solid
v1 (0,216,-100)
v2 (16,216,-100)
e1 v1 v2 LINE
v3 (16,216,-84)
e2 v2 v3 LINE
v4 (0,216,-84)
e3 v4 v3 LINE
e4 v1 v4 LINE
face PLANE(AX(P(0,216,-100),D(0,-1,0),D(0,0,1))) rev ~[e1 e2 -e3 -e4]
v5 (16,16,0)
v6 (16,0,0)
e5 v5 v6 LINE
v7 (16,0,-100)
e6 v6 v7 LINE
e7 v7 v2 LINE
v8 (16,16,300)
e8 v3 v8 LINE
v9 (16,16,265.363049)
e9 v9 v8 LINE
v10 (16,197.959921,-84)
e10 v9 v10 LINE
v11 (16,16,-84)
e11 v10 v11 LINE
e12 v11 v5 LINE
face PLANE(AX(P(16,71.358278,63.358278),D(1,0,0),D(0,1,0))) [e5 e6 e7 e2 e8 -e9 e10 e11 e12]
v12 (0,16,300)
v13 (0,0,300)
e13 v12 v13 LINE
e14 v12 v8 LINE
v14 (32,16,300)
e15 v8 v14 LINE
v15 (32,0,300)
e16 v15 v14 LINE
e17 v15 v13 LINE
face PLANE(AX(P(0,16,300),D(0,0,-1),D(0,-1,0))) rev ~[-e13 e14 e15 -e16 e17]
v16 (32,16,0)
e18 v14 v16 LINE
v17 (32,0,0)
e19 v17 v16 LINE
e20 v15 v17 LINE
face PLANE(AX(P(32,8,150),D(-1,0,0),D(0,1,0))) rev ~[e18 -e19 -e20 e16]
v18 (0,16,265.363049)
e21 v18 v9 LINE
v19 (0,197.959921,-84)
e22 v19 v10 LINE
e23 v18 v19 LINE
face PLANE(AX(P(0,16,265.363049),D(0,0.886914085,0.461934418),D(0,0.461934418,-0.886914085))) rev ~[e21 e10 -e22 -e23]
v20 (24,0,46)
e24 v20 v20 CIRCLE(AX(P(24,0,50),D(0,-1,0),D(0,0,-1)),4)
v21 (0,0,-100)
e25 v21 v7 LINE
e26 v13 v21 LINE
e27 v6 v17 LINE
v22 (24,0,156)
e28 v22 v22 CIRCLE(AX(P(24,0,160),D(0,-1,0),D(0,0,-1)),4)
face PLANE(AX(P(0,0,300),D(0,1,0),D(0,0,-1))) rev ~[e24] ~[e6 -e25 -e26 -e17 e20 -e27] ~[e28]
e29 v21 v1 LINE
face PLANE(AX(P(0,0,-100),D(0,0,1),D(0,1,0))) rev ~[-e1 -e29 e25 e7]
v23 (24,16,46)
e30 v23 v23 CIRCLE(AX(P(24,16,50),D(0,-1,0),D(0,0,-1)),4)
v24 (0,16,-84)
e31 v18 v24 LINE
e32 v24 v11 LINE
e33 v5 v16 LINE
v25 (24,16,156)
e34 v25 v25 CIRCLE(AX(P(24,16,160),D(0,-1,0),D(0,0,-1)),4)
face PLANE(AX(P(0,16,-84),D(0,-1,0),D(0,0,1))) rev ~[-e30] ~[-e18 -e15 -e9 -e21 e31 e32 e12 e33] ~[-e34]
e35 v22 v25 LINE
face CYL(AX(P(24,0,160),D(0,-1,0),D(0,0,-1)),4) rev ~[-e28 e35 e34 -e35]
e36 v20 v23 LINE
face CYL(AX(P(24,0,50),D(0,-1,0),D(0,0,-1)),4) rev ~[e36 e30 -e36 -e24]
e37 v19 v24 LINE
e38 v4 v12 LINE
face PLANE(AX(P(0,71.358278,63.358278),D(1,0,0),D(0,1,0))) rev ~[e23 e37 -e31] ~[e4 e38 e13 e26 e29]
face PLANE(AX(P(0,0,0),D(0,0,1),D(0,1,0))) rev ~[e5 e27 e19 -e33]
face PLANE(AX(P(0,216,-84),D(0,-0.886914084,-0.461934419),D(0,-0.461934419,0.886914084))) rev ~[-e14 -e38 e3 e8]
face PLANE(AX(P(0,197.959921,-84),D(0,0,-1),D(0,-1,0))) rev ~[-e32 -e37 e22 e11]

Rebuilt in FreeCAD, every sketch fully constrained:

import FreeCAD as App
import Part
import Sketcher

V = App.Vector
Q = App.Units.Quantity

doc = App.newDocument("Part")
body = doc.addObject("PartDesign::Body", "Body")

sketch1 = doc.addObject("Sketcher::SketchObject", "Sketch")
body.addObject(sketch1)
sketch1.AttachmentSupport = (doc.YZ_Plane, [""])
sketch1.MapMode = "FlatFace"
sketch1.addGeometry([
    Part.LineSegment(V(0, -100, 0), V(216, -100, 0)),
    Part.LineSegment(V(216, -100, 0), V(216, -84, 0)),
    Part.LineSegment(V(216, -84, 0), V(16, 300, 0)),
    Part.LineSegment(V(16, 300, 0), V(0, 300, 0)),
    Part.LineSegment(V(0, 300, 0), V(0, -100, 0)),
    Part.LineSegment(V(16, -84, 0), V(16, 265, 0)),
    Part.LineSegment(V(16, 265, 0), V(198, -84, 0)),
    Part.LineSegment(V(198, -84, 0), V(16, -84, 0)),
], False)
sketch1.addConstraint([
    Sketcher.Constraint("Coincident", 0, 2, 1, 1),
    Sketcher.Constraint("Coincident", 1, 2, 2, 1),
    Sketcher.Constraint("Coincident", 2, 2, 3, 1),
    Sketcher.Constraint("Coincident", 3, 2, 4, 1),
    Sketcher.Constraint("Coincident", 4, 2, 0, 1),
    Sketcher.Constraint("Coincident", 5, 2, 6, 1),
    Sketcher.Constraint("Coincident", 6, 2, 7, 1),
    Sketcher.Constraint("Coincident", 7, 2, 5, 1),
    Sketcher.Constraint("Horizontal", 0),
    Sketcher.Constraint("Vertical", 1),
    Sketcher.Constraint("Horizontal", 3),
    Sketcher.Constraint("Vertical", 4),
    Sketcher.Constraint("Vertical", 5),
    Sketcher.Constraint("Horizontal", 7),
    Sketcher.Constraint("PointOnObject", 3, 2, -2),
    Sketcher.Constraint("Parallel", 2, 6),
    Sketcher.Constraint("Horizontal", 1, 2, 6, 2),
    Sketcher.Constraint("Vertical", 2, 2, 5, 2),
    Sketcher.Constraint("Equal", 3, 1),
    Sketcher.Constraint("DistanceX", 0, 1, 0, 2, Q("216 mm")),
    Sketcher.Constraint("DistanceX", 3, 2, 3, 1, Q("16 mm")),
    Sketcher.Constraint("DistanceY", 4, 2, 4, 1, Q("400 mm")),
    Sketcher.Constraint("DistanceY", 0, 2, -1, 1, Q("100 mm")),
    Sketcher.Constraint("DistanceX", 7, 2, 7, 1, Q("181.959921 mm")),
])
pad1 = doc.addObject("PartDesign::Pad", "Pad")
body.addObject(pad1)
pad1.Profile = sketch1
pad1.Length = 16

sketch2 = doc.addObject("Sketcher::SketchObject", "Sketch001")
body.addObject(sketch2)
sketch2.AttachmentSupport = (doc.YZ_Plane, [""])
sketch2.MapMode = "FlatFace"
sketch2.addGeometry([
    Part.LineSegment(V(0, 0, 0), V(0, 300, 0)),
    Part.LineSegment(V(0, 300, 0), V(16, 300, 0)),
    Part.LineSegment(V(16, 300, 0), V(16, 0, 0)),
    Part.LineSegment(V(16, 0, 0), V(0, 0, 0)),
], False)
sketch2.addConstraint([
    Sketcher.Constraint("Coincident", 0, 2, 1, 1),
    Sketcher.Constraint("Coincident", 1, 2, 2, 1),
    Sketcher.Constraint("Coincident", 2, 2, 3, 1),
    Sketcher.Constraint("Coincident", 3, 2, 0, 1),
    Sketcher.Constraint("Vertical", 0),
    Sketcher.Constraint("Horizontal", 1),
    Sketcher.Constraint("Vertical", 2),
    Sketcher.Constraint("Horizontal", 3),
    Sketcher.Constraint("Coincident", 3, 2, -1, 1),
    Sketcher.Constraint("DistanceX", 1, 1, 1, 2, Q("16 mm")),
    Sketcher.Constraint("DistanceY", 0, 1, 0, 2, Q("300 mm")),
])
pad2 = doc.addObject("PartDesign::Pad", "Pad001")
body.addObject(pad2)
pad2.Profile = sketch2
pad2.Length = 32

sketch3 = doc.addObject("Sketcher::SketchObject", "Sketch002")
body.addObject(sketch3)
sketch3.AttachmentSupport = (doc.XZ_Plane, [""])
sketch3.MapMode = "FlatFace"
sketch3.addGeometry([
    Part.Circle(V(24, 160, 0), V(0, 0, 1), 4),
    Part.Circle(V(24, 50, 0), V(0, 0, 1), 4),
], False)
sketch3.addConstraint([
    Sketcher.Constraint("Equal", 0, 1),
    Sketcher.Constraint("Vertical", 0, 3, 1, 3),
    Sketcher.Constraint("Diameter", 0, Q("8 mm")),
    Sketcher.Constraint("DistanceX", -1, 1, 0, 3, Q("24 mm")),
    Sketcher.Constraint("DistanceY", -1, 1, 0, 3, Q("160 mm")),
    Sketcher.Constraint("DistanceY", -1, 1, 1, 3, Q("50 mm")),
])
pocket1 = doc.addObject("PartDesign::Pocket", "Pocket")
body.addObject(pocket1)
pocket1.Profile = sketch3
pocket1.Type = "ThroughAll"

doc.recompute()
